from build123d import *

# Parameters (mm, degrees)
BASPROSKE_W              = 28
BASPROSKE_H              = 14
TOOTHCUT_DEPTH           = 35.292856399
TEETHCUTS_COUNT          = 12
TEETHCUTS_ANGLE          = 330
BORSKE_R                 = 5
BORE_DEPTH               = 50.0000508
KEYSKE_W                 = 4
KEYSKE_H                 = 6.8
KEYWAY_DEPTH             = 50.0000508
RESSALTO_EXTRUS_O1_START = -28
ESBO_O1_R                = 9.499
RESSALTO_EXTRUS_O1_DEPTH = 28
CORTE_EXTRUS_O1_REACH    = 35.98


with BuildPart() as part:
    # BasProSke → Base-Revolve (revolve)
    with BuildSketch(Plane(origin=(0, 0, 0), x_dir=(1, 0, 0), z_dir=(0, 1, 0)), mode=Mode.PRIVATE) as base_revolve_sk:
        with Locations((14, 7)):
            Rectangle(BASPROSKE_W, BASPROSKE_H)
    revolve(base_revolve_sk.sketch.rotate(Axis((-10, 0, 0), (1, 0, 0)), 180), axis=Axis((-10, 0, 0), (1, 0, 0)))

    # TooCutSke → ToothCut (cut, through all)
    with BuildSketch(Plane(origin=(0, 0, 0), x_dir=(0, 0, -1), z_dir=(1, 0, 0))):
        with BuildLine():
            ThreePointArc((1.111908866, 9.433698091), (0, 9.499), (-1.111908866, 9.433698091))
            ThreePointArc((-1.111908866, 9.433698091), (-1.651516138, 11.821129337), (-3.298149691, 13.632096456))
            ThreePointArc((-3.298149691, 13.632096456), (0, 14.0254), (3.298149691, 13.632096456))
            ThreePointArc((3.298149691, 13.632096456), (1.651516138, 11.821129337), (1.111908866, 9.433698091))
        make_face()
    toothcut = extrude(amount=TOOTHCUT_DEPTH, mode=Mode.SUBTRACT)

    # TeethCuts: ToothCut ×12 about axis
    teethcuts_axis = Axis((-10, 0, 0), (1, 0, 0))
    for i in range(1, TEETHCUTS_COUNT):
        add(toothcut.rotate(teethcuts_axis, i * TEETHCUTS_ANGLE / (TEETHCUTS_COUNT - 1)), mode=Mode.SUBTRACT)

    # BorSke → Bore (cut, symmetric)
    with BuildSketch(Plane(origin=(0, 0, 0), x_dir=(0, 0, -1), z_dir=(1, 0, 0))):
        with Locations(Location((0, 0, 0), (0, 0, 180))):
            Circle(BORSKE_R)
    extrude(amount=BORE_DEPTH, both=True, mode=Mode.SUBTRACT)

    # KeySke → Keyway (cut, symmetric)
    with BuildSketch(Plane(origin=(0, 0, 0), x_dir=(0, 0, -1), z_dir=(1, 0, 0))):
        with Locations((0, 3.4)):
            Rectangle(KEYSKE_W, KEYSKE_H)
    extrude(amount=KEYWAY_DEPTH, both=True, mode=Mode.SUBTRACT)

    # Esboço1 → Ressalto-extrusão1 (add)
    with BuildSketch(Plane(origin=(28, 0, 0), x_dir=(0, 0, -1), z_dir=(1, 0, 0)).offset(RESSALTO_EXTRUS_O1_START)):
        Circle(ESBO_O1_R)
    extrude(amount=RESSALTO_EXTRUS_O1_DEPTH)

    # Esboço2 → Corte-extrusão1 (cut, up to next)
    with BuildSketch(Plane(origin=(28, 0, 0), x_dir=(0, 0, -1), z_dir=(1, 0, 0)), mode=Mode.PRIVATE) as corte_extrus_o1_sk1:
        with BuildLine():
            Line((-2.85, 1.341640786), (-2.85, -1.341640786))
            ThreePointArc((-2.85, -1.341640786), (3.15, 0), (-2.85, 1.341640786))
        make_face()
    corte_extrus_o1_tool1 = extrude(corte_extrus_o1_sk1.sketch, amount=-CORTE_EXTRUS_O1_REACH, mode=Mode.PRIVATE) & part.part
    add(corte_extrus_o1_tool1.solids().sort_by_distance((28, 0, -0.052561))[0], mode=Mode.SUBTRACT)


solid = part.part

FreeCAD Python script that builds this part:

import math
import FreeCAD as App
import Part
import Sketcher

V = App.Vector
Q = App.Units.Quantity


def add_polygon(sketch, points):
    """Adds a closed chain of lines whose ends are joined by coincident constraints."""
    first, n = sketch.GeometryCount, len(points)
    for a, b in zip(points, points[1:] + points[:1]):
        sketch.addGeometry(Part.LineSegment(App.Vector(*a, 0), App.Vector(*b, 0)), False)
    for i in range(n):
        sketch.addConstraint(Sketcher.Constraint("Coincident", first + i, 2, first + (i + 1) % n, 1))

doc = App.newDocument("Part")
body = doc.addObject("PartDesign::Body", "Body")

# Sketch on XZ plane
sketch1 = body.newObject("Sketcher::SketchObject", "Sketch")
sketch1.AttachmentSupport = (doc.getObject("XZ_Plane"), [""])
sketch1.MapMode = "FlatFace"
add_polygon(sketch1, [(0, -14), (0, 0), (28, 0), (28, -14)])  # lines 0-3
sketch1.addConstraint(Sketcher.Constraint("Vertical", 0))
sketch1.addConstraint(Sketcher.Constraint("Horizontal", 1))
sketch1.addConstraint(Sketcher.Constraint("Vertical", 2))
sketch1.addConstraint(Sketcher.Constraint("Horizontal", 3))
sketch1.addConstraint(Sketcher.Constraint("Coincident", 0, 2, -1, 1))
sketch1.addConstraint(Sketcher.Constraint("DistanceX", 1, 1, 1, 2, Q("28 mm")))
sketch1.addConstraint(Sketcher.Constraint("DistanceY", 0, 1, 0, 2, Q("14 mm")))
revolution = body.newObject("PartDesign::Revolution", "Revolution")
revolution.Profile = sketch1
revolution.ReferenceAxis = (sketch1, ["H_Axis"])
revolution.Angle = 360

# Sketch on YZ plane
sketch2 = body.newObject("Sketcher::SketchObject", "Sketch001")
sketch2.AttachmentSupport = (doc.getObject("YZ_Plane"), [""])
sketch2.MapMode = "FlatFace"
sketch2.addGeometry(Part.ArcOfCircle(Part.Circle(V(0, 0, 0), V(0, 0, 1), 9.5), math.radians(-6.72), math.radians(6.72)), False)
sketch2.addGeometry(Part.ArcOfCircle(Part.Circle(V(9.6, -5.9, 0), V(0, 0, 1), 4.8), math.radians(33), math.radians(92)), False)
sketch2.addGeometry(Part.ArcOfCircle(Part.Circle(V(0, 0, 0), V(0, 0, 1), 14), math.radians(-14), math.radians(14)), False)
sketch2.addGeometry(Part.ArcOfCircle(Part.Circle(V(9.6, 5.9, 0), V(0, 0, 1), 4.8), math.radians(-92), math.radians(-33)), False)
sketch2.addConstraint(Sketcher.Constraint("Coincident", 0, 1, 1, 2))
sketch2.addConstraint(Sketcher.Constraint("Coincident", 1, 1, 2, 1))
sketch2.addConstraint(Sketcher.Constraint("Coincident", 2, 2, 3, 2))
sketch2.addConstraint(Sketcher.Constraint("Coincident", 3, 1, 0, 2))
sketch2.addConstraint(Sketcher.Constraint("Coincident", 0, 3, -1, 1))
sketch2.addConstraint(Sketcher.Constraint("Coincident", 2, 3, -1, 1))
sketch2.addConstraint(Sketcher.Constraint("Equal", 1, 3))
sketch2.addConstraint(Sketcher.Constraint("Symmetric", 1, 3, 3, 3, -1))
sketch2.addConstraint(Sketcher.Constraint("Radius", 1, Q("4.8 mm")))
sketch2.addConstraint(Sketcher.Constraint("Radius", 0, Q("9.499 mm")))
sketch2.addConstraint(Sketcher.Constraint("Radius", 2, Q("14.0254 mm")))
sketch2.addConstraint(Sketcher.Constraint("DistanceX", -1, 1, 0, 1, Q("9.433698 mm")))
sketch2.addConstraint(Sketcher.Constraint("DistanceX", 0, 1, 1, 1, Q("4.198398 mm")))
pocket1 = body.newObject("PartDesign::Pocket", "Pocket")
pocket1.Profile = sketch2
pocket1.Type = "ThroughAll"
pocket1.Reversed = True
doc.recompute()

polarpattern = body.newObject("PartDesign::PolarPattern", "PolarPattern")
polarpattern.Originals = [pocket1]
polarpattern.Axis = (doc.getObject("X_Axis"), [""])
polarpattern.Angle = 360
polarpattern.Occurrences = 12
body.Tip = polarpattern

# Sketch on YZ plane
sketch3 = body.newObject("Sketcher::SketchObject", "Sketch002")
sketch3.AttachmentSupport = (doc.getObject("YZ_Plane"), [""])
sketch3.MapMode = "FlatFace"
sketch3.addGeometry(Part.Circle(V(0, 0, 0), V(0, 0, 1), 5), False)
sketch3.addConstraint(Sketcher.Constraint("Coincident", 0, 3, -1, 1))
sketch3.addConstraint(Sketcher.Constraint("Diameter", 0, Q("10 mm")))
pocket2 = body.newObject("PartDesign::Pocket", "Pocket001")
pocket2.Profile = sketch3
pocket2.Length = 100.000102
pocket2.Midplane = True

# Sketch on YZ plane
sketch4 = body.newObject("Sketcher::SketchObject", "Sketch003")
sketch4.AttachmentSupport = (doc.getObject("YZ_Plane"), [""])
sketch4.MapMode = "FlatFace"
add_polygon(sketch4, [(6.8, 2), (0, 2), (0, -2), (6.8, -2)])  # lines 0-3
sketch4.addConstraint(Sketcher.Constraint("Horizontal", 0))
sketch4.addConstraint(Sketcher.Constraint("Vertical", 1))
sketch4.addConstraint(Sketcher.Constraint("Horizontal", 2))
sketch4.addConstraint(Sketcher.Constraint("Vertical", 3))
sketch4.addConstraint(Sketcher.Constraint("Symmetric", 0, 2, 1, 2, -1, 1))
sketch4.addConstraint(Sketcher.Constraint("DistanceY", 1, 2, 1, 1, Q("4 mm")))
sketch4.addConstraint(Sketcher.Constraint("DistanceX", 0, 2, 0, 1, Q("6.8 mm")))
pocket3 = body.newObject("PartDesign::Pocket", "Pocket002")
pocket3.Profile = sketch4
pocket3.Length = 100.000102
pocket3.Midplane = True

# Sketch on YZ plane
sketch5 = body.newObject("Sketcher::SketchObject", "Sketch004")
sketch5.AttachmentSupport = (doc.getObject("YZ_Plane"), [""])
sketch5.MapMode = "FlatFace"
sketch5.addGeometry(Part.Circle(V(0, 0, 0), V(0, 0, 1), 9), False)
sketch5.addConstraint(Sketcher.Constraint("Coincident", 0, 3, -1, 1))
sketch5.addConstraint(Sketcher.Constraint("Diameter", 0, Q("18.998 mm")))
pad1 = body.newObject("PartDesign::Pad", "Pad")
pad1.Profile = sketch5
pad1.Length = 28

# Sketch on YZ plane
sketch6 = body.newObject("Sketcher::SketchObject", "Sketch005")
sketch6.AttachmentSupport = (doc.getObject("YZ_Plane"), [""])
sketch6.MapMode = "FlatFace"
sketch6.AttachmentOffset = App.Placement(V(0, 0, 28), App.Rotation())
sketch6.addGeometry(Part.LineSegment(V(1.3, 2.9, 0), V(-1.3, 2.9, 0)), False)
sketch6.addGeometry(Part.ArcOfCircle(Part.Circle(V(0, 0, 0), V(0, 0, 1), 3.1), math.radians(115), math.radians(425)), False)
sketch6.addConstraint(Sketcher.Constraint("Coincident", 0, 1, 1, 2))
sketch6.addConstraint(Sketcher.Constraint("Coincident", 1, 1, 0, 2))
sketch6.addConstraint(Sketcher.Constraint("Horizontal", 0))
sketch6.addConstraint(Sketcher.Constraint("Coincident", 1, 3, -1, 1))
sketch6.addConstraint(Sketcher.Constraint("Radius", 1, Q("3.15 mm")))
sketch6.addConstraint(Sketcher.Constraint("DistanceY", -1, 1, 0, 1, Q("2.85 mm")))
pocket4 = body.newObject("PartDesign::Pocket", "Pocket003")
pocket4.Profile = sketch6
pocket4.Type = "UpToFirst"

doc.recompute()
